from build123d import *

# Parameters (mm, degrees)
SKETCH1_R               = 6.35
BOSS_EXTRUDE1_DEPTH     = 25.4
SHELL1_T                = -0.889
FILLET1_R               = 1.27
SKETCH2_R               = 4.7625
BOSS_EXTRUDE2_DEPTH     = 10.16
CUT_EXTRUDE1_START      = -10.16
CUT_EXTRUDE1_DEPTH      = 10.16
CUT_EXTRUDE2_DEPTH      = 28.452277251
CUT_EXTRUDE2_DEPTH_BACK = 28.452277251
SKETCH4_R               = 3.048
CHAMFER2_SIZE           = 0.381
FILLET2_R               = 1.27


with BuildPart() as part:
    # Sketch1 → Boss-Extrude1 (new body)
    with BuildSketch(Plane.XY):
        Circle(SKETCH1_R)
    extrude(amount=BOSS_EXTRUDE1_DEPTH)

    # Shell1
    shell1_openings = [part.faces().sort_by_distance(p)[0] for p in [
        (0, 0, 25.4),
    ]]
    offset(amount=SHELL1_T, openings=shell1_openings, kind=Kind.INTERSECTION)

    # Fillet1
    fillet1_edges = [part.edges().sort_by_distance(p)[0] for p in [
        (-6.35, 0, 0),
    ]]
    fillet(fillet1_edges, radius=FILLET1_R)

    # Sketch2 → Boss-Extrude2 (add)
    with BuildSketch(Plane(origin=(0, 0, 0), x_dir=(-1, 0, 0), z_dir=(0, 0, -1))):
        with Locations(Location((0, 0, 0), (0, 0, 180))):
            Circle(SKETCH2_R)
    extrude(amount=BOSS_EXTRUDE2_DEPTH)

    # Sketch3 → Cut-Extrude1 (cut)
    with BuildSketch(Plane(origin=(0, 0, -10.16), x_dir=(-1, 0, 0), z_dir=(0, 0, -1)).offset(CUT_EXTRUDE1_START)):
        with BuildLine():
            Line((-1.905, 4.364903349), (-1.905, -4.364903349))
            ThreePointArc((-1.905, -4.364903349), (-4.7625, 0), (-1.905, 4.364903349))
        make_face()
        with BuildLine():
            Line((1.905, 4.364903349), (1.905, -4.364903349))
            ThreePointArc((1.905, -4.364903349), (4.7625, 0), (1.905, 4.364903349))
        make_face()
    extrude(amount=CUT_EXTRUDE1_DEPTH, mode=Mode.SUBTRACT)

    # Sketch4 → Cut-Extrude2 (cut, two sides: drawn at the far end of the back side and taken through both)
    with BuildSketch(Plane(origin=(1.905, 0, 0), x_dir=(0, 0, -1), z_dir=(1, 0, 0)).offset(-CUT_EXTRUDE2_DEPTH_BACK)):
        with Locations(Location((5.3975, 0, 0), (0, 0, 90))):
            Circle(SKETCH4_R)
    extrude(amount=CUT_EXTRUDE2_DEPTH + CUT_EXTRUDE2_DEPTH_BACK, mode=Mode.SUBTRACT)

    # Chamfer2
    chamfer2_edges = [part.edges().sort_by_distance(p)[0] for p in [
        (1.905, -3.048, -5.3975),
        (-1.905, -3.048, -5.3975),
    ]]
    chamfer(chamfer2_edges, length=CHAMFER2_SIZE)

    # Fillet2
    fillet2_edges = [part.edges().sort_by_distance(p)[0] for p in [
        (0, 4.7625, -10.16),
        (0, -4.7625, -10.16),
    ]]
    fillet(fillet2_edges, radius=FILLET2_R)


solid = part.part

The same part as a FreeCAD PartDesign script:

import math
import FreeCAD as App
import Part
import Sketcher
from FreeCAD import Vector
Q = App.Units.Quantity


def edges_at(feature, points):
    """Names of the edges that pass closest to the given points."""
    edges = feature.Shape.Edges
    near = lambda p: min(range(len(edges)), key=lambda i: edges[i].distToShape(Part.Vertex(*p))[0])
    return sorted({f"Edge{near(p) + 1}" for p in points})


def faces_at(feature, points):
    """Names of the faces that lie closest to the given points."""
    faces = feature.Shape.Faces
    near = lambda p: min(range(len(faces)), key=lambda i: faces[i].distToShape(Part.Vertex(*p))[0])
    return sorted({f"Face{near(p) + 1}" for p in points})

doc = App.newDocument("Part")
body = doc.addObject("PartDesign::Body", "Body")

# Sketch on XY plane
sketch1 = body.newObject("Sketcher::SketchObject", "Sketch")
sketch1.AttachmentSupport = (doc.getObject("XY_Plane"), [""])
sketch1.MapMode = "FlatFace"
sketch1.addGeometry(Part.Circle(Vector(0, 0, 0), Vector(0, 0, 1), 6.35), False)
sketch1.addConstraint(Sketcher.Constraint("Coincident", 0, 3, -1, 1))
sketch1.addConstraint(Sketcher.Constraint("Diameter", 0, Q("0.5 in")))
pad1 = body.newObject("PartDesign::Pad", "Pad")
pad1.Profile = sketch1
pad1.Length = Q("1 in")
doc.recompute()

thickness = body.newObject("PartDesign::Thickness", "Thickness")
thickness.Base = (pad1, faces_at(pad1, [(0, 0, 25.4)]))
thickness.Value = Q("0.035 in")
thickness.Reversed = True
thickness.Join = "Intersection"
doc.recompute()

fillet = body.newObject("PartDesign::Fillet", "Fillet")
fillet.Base = (thickness, edges_at(thickness, [(-6.35, 0, 0)]))
fillet.Radius = Q("0.05 in")

# Sketch on XY plane
sketch2 = body.newObject("Sketcher::SketchObject", "Sketch001")
sketch2.AttachmentSupport = (doc.getObject("XY_Plane"), [""])
sketch2.MapMode = "FlatFace"
sketch2.addGeometry(Part.Circle(Vector(0, 0, 0), Vector(0, 0, 1), 4.7625), False)
sketch2.addConstraint(Sketcher.Constraint("Coincident", 0, 3, -1, 1))
sketch2.addConstraint(Sketcher.Constraint("Diameter", 0, Q("0.375 in")))
pad2 = body.newObject("PartDesign::Pad", "Pad001")
pad2.Profile = sketch2
pad2.Length = Q("0.4 in")
pad2.Reversed = True

# Sketch on XY plane
sketch3 = body.newObject("Sketcher::SketchObject", "Sketch002")
sketch3.AttachmentSupport = (doc.getObject("XY_Plane"), [""])
sketch3.MapMode = "FlatFace"
sketch3.addGeometry(Part.LineSegment(Vector(1.905, -4.364903, 0), Vector(1.905, 4.364903, 0)), False)
sketch3.addGeometry(Part.ArcOfCircle(Part.Circle(Vector(0, 0, 0), Vector(0, 0, 1), 4.7625), math.radians(-66.421822), math.radians(66.421822)), False)
sketch3.addGeometry(Part.LineSegment(Vector(-1.905, 4.364903, 0), Vector(-1.905, -4.364903, 0)), False)
sketch3.addGeometry(Part.ArcOfCircle(Part.Circle(Vector(0, 0, 0), Vector(0, 0, 1), 4.7625), math.radians(113.578178), math.radians(246.421822)), False)
sketch3.addConstraint(Sketcher.Constraint("Coincident", 0, 1, 1, 1))
sketch3.addConstraint(Sketcher.Constraint("Coincident", 1, 2, 0, 2))
sketch3.addConstraint(Sketcher.Constraint("Coincident", 2, 1, 3, 1))
sketch3.addConstraint(Sketcher.Constraint("Coincident", 3, 2, 2, 2))
sketch3.addConstraint(Sketcher.Constraint("Vertical", 0))
sketch3.addConstraint(Sketcher.Constraint("Vertical", 2))
sketch3.addConstraint(Sketcher.Constraint("Coincident", 1, 3, -1, 1))
sketch3.addConstraint(Sketcher.Constraint("Coincident", 3, 3, -1, 1))
sketch3.addConstraint(Sketcher.Constraint("Equal", 1, 3))
sketch3.addConstraint(Sketcher.Constraint("Horizontal", 1, 2, 2, 1))
sketch3.addConstraint(Sketcher.Constraint("Radius", 1, Q("0.1875 in")))
sketch3.addConstraint(Sketcher.Constraint("DistanceX", 2, 1, 1, 2, Q("0.15 in")))
pocket1 = body.newObject("PartDesign::Pocket", "Pocket")
pocket1.Profile = sketch3
pocket1.Length = Q("0.4 in")

# Sketch on YZ plane
sketch4 = body.newObject("Sketcher::SketchObject", "Sketch003")
sketch4.AttachmentSupport = (doc.getObject("YZ_Plane"), [""])
sketch4.MapMode = "FlatFace"
sketch4.AttachmentOffset = App.Placement(Vector(0, 0, 0.075 * 25.4), App.Rotation())
sketch4.addGeometry(Part.Circle(Vector(0, -5.3975, 0), Vector(0, 0, 1), 3.048), False)
sketch4.addConstraint(Sketcher.Constraint("PointOnObject", 0, 3, -2))
sketch4.addConstraint(Sketcher.Constraint("Diameter", 0, Q("0.24 in")))
sketch4.addConstraint(Sketcher.Constraint("DistanceY", 0, 3, -1, 1, Q("0.2125 in")))
pocket2 = body.newObject("PartDesign::Pocket", "Pocket001")
pocket2.Profile = sketch4
pocket2.Type = "ThroughAll"
pocket2.Midplane = True
doc.recompute()

chamfer = body.newObject("PartDesign::Chamfer", "Chamfer")
chamfer.Base = (pocket2, edges_at(pocket2, [(1.905, -3.048, -5.397), (-1.905, -3.048, -5.397)]))
chamfer.Size = Q("0.015 in")
doc.recompute()

fillet2 = body.newObject("PartDesign::Fillet", "Fillet001")
fillet2.Base = (chamfer, edges_at(chamfer, [(0, 4.763, -10.16), (0, -4.763, -10.16)]))
fillet2.Radius = Q("0.05 in")

doc.recompute()
